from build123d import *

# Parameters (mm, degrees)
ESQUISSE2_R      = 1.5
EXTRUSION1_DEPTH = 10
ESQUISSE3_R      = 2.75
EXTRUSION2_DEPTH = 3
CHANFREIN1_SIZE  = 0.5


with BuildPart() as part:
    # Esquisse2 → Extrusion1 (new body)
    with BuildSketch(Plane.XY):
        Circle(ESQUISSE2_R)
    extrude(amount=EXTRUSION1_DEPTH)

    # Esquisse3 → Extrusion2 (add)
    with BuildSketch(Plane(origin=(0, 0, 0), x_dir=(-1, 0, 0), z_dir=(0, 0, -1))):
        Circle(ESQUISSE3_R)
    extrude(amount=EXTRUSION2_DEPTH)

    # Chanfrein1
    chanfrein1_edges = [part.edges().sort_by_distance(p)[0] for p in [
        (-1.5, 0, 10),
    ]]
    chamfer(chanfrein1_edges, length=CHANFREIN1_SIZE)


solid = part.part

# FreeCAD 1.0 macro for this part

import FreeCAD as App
import Part
import Sketcher
from FreeCAD import Vector
Q = App.Units.Quantity


def edges_at(feature, points):
    """Names of the edges that pass closest to the given points."""
    edges = feature.Shape.Edges
    near = lambda p: min(range(len(edges)), key=lambda i: edges[i].distToShape(Part.Vertex(*p))[0])
    return sorted({f"Edge{near(p) + 1}" for p in points})

doc = App.newDocument("Part")
body = doc.addObject("PartDesign::Body", "Body")

# Sketch on XY plane
sketch1 = doc.addObject("Sketcher::SketchObject", "Sketch")
body.addObject(sketch1)
sketch1.AttachmentSupport = (doc.XY_Plane, [""])
sketch1.MapMode = "FlatFace"
sketch1.addGeometry(Part.Circle(Vector(0, 0, 0), Vector(0, 0, 1), 1.5), False)
sketch1.addConstraint([
    Sketcher.Constraint("Coincident", 0, 3, -1, 1),
    Sketcher.Constraint("Diameter", 0, Q("3 mm")),
])
pad1 = doc.addObject("PartDesign::Pad", "Pad")
body.addObject(pad1)
pad1.Profile = sketch1
pad1.Length = 10

# Sketch on XY plane
sketch2 = doc.addObject("Sketcher::SketchObject", "Sketch001")
body.addObject(sketch2)
sketch2.AttachmentSupport = (doc.XY_Plane, [""])
sketch2.MapMode = "FlatFace"
sketch2.addGeometry(Part.Circle(Vector(0, 0, 0), Vector(0, 0, 1), 2.8), False)
sketch2.addConstraint([
    Sketcher.Constraint("Coincident", 0, 3, -1, 1),
    Sketcher.Constraint("Diameter", 0, Q("5.5 mm")),
])
pad2 = doc.addObject("PartDesign::Pad", "Pad001")
body.addObject(pad2)
pad2.Profile = sketch2
pad2.Length = 3
pad2.Reversed = True
doc.recompute()

chamfer = doc.addObject("PartDesign::Chamfer", "Chamfer")
body.addObject(chamfer)
chamfer.Base = (pad2, edges_at(pad2, [(-1.5, 0, 10)]))
chamfer.Size = 0.5

doc.recompute()
